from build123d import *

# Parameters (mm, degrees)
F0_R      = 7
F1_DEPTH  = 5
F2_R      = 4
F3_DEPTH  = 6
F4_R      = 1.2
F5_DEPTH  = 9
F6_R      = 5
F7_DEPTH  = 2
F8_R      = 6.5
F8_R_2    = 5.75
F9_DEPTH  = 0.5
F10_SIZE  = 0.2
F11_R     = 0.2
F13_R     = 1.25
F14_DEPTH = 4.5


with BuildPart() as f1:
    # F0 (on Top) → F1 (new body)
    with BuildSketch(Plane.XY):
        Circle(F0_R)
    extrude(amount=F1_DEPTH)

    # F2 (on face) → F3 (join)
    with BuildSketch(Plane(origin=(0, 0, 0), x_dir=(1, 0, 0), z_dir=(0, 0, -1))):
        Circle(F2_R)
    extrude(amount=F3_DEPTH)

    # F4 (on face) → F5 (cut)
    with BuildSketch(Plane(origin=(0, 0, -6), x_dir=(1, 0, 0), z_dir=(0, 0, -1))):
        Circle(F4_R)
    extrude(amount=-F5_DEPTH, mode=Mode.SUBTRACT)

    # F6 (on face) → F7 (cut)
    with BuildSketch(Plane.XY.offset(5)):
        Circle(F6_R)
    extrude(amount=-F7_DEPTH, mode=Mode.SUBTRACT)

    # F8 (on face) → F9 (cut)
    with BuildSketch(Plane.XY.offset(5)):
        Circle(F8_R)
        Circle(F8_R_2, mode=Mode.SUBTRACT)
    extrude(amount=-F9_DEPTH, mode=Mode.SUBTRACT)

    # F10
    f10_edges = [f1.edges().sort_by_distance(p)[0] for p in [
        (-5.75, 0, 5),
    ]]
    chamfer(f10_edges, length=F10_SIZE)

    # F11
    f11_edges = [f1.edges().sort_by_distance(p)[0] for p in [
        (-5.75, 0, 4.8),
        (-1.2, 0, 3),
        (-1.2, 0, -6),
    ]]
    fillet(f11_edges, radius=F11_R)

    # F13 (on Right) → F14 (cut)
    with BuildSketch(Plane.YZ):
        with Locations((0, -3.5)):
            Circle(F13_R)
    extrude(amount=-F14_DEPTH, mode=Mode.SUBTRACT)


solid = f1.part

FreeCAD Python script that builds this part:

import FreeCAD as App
import Part
import Sketcher

V = App.Vector
Q = App.Units.Quantity


def edges_at(feature, points):
    """Names of the edges that pass closest to the given points."""
    edges = feature.Shape.Edges
    near = lambda p: min(range(len(edges)), key=lambda i: edges[i].distToShape(Part.Vertex(*p))[0])
    return sorted({f"Edge{near(p) + 1}" for p in points})

doc = App.newDocument("Part")
body = doc.addObject("PartDesign::Body", "Body")

# Sketch on XY plane
sketch1 = body.newObject("Sketcher::SketchObject", "Sketch")
sketch1.AttachmentSupport = (doc.getObject("XY_Plane"), [""])
sketch1.MapMode = "FlatFace"
sketch1.addGeometry(Part.Circle(V(0, 0, 0), V(0, 0, 1), 7), False)
sketch1.addConstraint([
    Sketcher.Constraint("Coincident", 0, 3, -1, 1),
    Sketcher.Constraint("Diameter", 0, Q("14 mm")),
])
pad1 = body.newObject("PartDesign::Pad", "Pad")
pad1.Profile = sketch1
pad1.Length = 5

# Sketch on XY plane
sketch2 = body.newObject("Sketcher::SketchObject", "Sketch001")
sketch2.AttachmentSupport = (doc.getObject("XY_Plane"), [""])
sketch2.MapMode = "FlatFace"
sketch2.addGeometry(Part.Circle(V(0, 0, 0), V(0, 0, 1), 4), False)
sketch2.addConstraint([
    Sketcher.Constraint("Coincident", 0, 3, -1, 1),
    Sketcher.Constraint("Diameter", 0, Q("8 mm")),
])
pad2 = body.newObject("PartDesign::Pad", "Pad001")
pad2.Profile = sketch2
pad2.Length = 6
pad2.Reversed = True

# Sketch on XY plane
sketch3 = body.newObject("Sketcher::SketchObject", "Sketch002")
sketch3.AttachmentSupport = (doc.getObject("XY_Plane"), [""])
sketch3.MapMode = "FlatFace"
sketch3.AttachmentOffset = App.Placement(V(0, 0, -6), App.Rotation())
sketch3.addGeometry(Part.Circle(V(0, 0, 0), V(0, 0, 1), 1.2), False)
sketch3.addConstraint([
    Sketcher.Constraint("Coincident", 0, 3, -1, 1),
    Sketcher.Constraint("Diameter", 0, Q("2.4 mm")),
])
pocket1 = body.newObject("PartDesign::Pocket", "Pocket")
pocket1.Profile = sketch3
pocket1.Length = 9
pocket1.Reversed = True

# Sketch on XY plane
sketch4 = body.newObject("Sketcher::SketchObject", "Sketch003")
sketch4.AttachmentSupport = (doc.getObject("XY_Plane"), [""])
sketch4.MapMode = "FlatFace"
sketch4.AttachmentOffset = App.Placement(V(0, 0, 5), App.Rotation())
sketch4.addGeometry(Part.Circle(V(0, 0, 0), V(0, 0, 1), 5), False)
sketch4.addConstraint([
    Sketcher.Constraint("Coincident", 0, 3, -1, 1),
    Sketcher.Constraint("Diameter", 0, Q("10 mm")),
])
pocket2 = body.newObject("PartDesign::Pocket", "Pocket001")
pocket2.Profile = sketch4
pocket2.Length = 2

# Sketch on XY plane
sketch5 = body.newObject("Sketcher::SketchObject", "Sketch004")
sketch5.AttachmentSupport = (doc.getObject("XY_Plane"), [""])
sketch5.MapMode = "FlatFace"
sketch5.AttachmentOffset = App.Placement(V(0, 0, 5), App.Rotation())
sketch5.addGeometry([
    Part.Circle(V(0, 0, 0), V(0, 0, 1), 6.5),
    Part.Circle(V(0, 0, 0), V(0, 0, 1), 5.75),
], False)
sketch5.addConstraint([
    Sketcher.Constraint("Coincident", 0, 3, -1, 1),
    Sketcher.Constraint("Coincident", 1, 3, -1, 1),
    Sketcher.Constraint("Diameter", 0, Q("13 mm")),
    Sketcher.Constraint("Diameter", 1, Q("11.5 mm")),
])
pocket3 = body.newObject("PartDesign::Pocket", "Pocket002")
pocket3.Profile = sketch5
pocket3.Length = 0.5
doc.recompute()

chamfer = body.newObject("PartDesign::Chamfer", "Chamfer")
chamfer.Base = (pocket3, edges_at(pocket3, [(-5.75, 0, 5)]))
chamfer.Size = 0.2
doc.recompute()

fillet = body.newObject("PartDesign::Fillet", "Fillet")
fillet.Base = (chamfer, edges_at(chamfer, [(-5.75, 0, 4.8), (-1.2, 0, 3), (-1.2, 0, -6)]))
fillet.Radius = 0.2

# Sketch on YZ plane
sketch6 = body.newObject("Sketcher::SketchObject", "Sketch005")
sketch6.AttachmentSupport = (doc.getObject("YZ_Plane"), [""])
sketch6.MapMode = "FlatFace"
sketch6.addGeometry(Part.Circle(V(0, -3.5, 0), V(0, 0, 1), 1.25), False)
sketch6.addConstraint([
    Sketcher.Constraint("PointOnObject", 0, 3, -2),
    Sketcher.Constraint("Diameter", 0, Q("2.5 mm")),
    Sketcher.Constraint("DistanceY", 0, 3, -1, 1, Q("3.5 mm")),
])
pocket4 = body.newObject("PartDesign::Pocket", "Pocket003")
pocket4.Profile = sketch6
pocket4.Length = 4.5

doc.recompute()
